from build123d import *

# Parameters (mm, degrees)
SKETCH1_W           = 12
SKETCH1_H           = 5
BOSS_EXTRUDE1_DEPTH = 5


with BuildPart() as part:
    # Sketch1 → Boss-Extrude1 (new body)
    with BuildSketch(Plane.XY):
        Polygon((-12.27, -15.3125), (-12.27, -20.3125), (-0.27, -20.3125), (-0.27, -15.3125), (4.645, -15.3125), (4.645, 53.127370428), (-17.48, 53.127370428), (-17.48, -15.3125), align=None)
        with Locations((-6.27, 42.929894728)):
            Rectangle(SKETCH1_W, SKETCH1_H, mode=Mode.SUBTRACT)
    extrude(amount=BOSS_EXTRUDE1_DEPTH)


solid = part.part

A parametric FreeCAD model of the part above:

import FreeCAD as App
import Part
import Sketcher

V = App.Vector

doc = App.newDocument("Part")
params = doc.addObject("Spreadsheet::Sheet", "Params")
for row, (alias, value) in enumerate([
    ("sketch1_width", "12 mm"),
    ("sketch1_height", "5 mm"),
    ("sketch1_width2", "5.21 mm"),
    ("pad1_length", "5 mm"),
], start=1):
    params.set(f"A{row}", alias)
    params.set(f"B{row}", "=" + value)
    params.setAlias(f"B{row}", alias)

body = doc.addObject("PartDesign::Body", "Body")

sketch1 = doc.addObject("Sketcher::SketchObject", "Sketch")
body.addObject(sketch1)
sketch1.AttachmentSupport = (doc.XY_Plane, [""])
sketch1.MapMode = "FlatFace"
sketch1.addGeometry([
    Part.LineSegment(V(-12.27, -15.3125, 0), V(-12.27, -20.3125, 0)),
    Part.LineSegment(V(-12.27, -20.3125, 0), V(-0.27, -20.3125, 0)),
    Part.LineSegment(V(-0.27, -20.3125, 0), V(-0.27, -15.3125, 0)),
    Part.LineSegment(V(-0.27, -15.3125, 0), V(4.645, -15.3125, 0)),
    Part.LineSegment(V(4.645, -15.3125, 0), V(4.645, 53.12737, 0)),
    Part.LineSegment(V(4.645, 53.12737, 0), V(-17.48, 53.12737, 0)),
    Part.LineSegment(V(-17.48, 53.12737, 0), V(-17.48, -15.3125, 0)),
    Part.LineSegment(V(-17.48, -15.3125, 0), V(-12.27, -15.3125, 0)),
    Part.LineSegment(V(-0.27, 40.429895, 0), V(-12.27, 40.429895, 0)),
    Part.LineSegment(V(-12.27, 40.429895, 0), V(-12.27, 45.429895, 0)),
    Part.LineSegment(V(-12.27, 45.429895, 0), V(-0.27, 45.429895, 0)),
    Part.LineSegment(V(-0.27, 45.429895, 0), V(-0.27, 40.429895, 0)),
], False)
sketch1.addConstraint([
    Sketcher.Constraint("Coincident", 0, 2, 1, 1),
    Sketcher.Constraint("Coincident", 1, 2, 2, 1),
    Sketcher.Constraint("Coincident", 2, 2, 3, 1),
    Sketcher.Constraint("Coincident", 3, 2, 4, 1),
    Sketcher.Constraint("Coincident", 4, 2, 5, 1),
    Sketcher.Constraint("Coincident", 5, 2, 6, 1),
    Sketcher.Constraint("Coincident", 6, 2, 7, 1),
    Sketcher.Constraint("Coincident", 7, 2, 0, 1),
    Sketcher.Constraint("Coincident", 8, 2, 9, 1),
    Sketcher.Constraint("Coincident", 9, 2, 10, 1),
    Sketcher.Constraint("Coincident", 10, 2, 11, 1),
    Sketcher.Constraint("Coincident", 11, 2, 8, 1),
    Sketcher.Constraint("Vertical", 0),
    Sketcher.Constraint("Horizontal", 1),
    Sketcher.Constraint("Vertical", 2),
    Sketcher.Constraint("Horizontal", 3),
    Sketcher.Constraint("Vertical", 4),
    Sketcher.Constraint("Horizontal", 5),
    Sketcher.Constraint("Vertical", 6),
    Sketcher.Constraint("Horizontal", 7),
    Sketcher.Constraint("Horizontal", 8),
    Sketcher.Constraint("Vertical", 9),
    Sketcher.Constraint("Horizontal", 10),
    Sketcher.Constraint("Vertical", 11),
    Sketcher.Constraint("Horizontal", 3, 2, 6, 2),
    Sketcher.Constraint("Vertical", 7, 2, 8, 2),
    Sketcher.Constraint("Vertical", 2, 2, 10, 2),
    Sketcher.Constraint("Equal", 2, 9),
    Sketcher.Constraint("DistanceX", 1, 1, 1, 2, 12.0),
    Sketcher.Constraint("DistanceY", 0, 2, 0, 1, 5.0),
    Sketcher.Constraint("DistanceX", 7, 1, 7, 2, 5.21),
    Sketcher.Constraint("DistanceX", 3, 1, 3, 2, 4.915),
    Sketcher.Constraint("DistanceX", 0, 2, -1, 1, 12.27),
    Sketcher.Constraint("DistanceY", 4, 1, 4, 2, 68.43987),
    Sketcher.Constraint("DistanceY", 0, 2, -1, 1, 20.3125),
    Sketcher.Constraint("DistanceY", -1, 1, 8, 2, 40.429895),
])
sketch1.setExpression("Constraints[28]", "Params.sketch1_width")
sketch1.setExpression("Constraints[29]", "Params.sketch1_height")
sketch1.setExpression("Constraints[30]", "Params.sketch1_width2")
pad1 = doc.addObject("PartDesign::Pad", "Pad")
body.addObject(pad1)
pad1.Profile = sketch1
pad1.setExpression("Length", "Params.pad1_length")

doc.recompute()
